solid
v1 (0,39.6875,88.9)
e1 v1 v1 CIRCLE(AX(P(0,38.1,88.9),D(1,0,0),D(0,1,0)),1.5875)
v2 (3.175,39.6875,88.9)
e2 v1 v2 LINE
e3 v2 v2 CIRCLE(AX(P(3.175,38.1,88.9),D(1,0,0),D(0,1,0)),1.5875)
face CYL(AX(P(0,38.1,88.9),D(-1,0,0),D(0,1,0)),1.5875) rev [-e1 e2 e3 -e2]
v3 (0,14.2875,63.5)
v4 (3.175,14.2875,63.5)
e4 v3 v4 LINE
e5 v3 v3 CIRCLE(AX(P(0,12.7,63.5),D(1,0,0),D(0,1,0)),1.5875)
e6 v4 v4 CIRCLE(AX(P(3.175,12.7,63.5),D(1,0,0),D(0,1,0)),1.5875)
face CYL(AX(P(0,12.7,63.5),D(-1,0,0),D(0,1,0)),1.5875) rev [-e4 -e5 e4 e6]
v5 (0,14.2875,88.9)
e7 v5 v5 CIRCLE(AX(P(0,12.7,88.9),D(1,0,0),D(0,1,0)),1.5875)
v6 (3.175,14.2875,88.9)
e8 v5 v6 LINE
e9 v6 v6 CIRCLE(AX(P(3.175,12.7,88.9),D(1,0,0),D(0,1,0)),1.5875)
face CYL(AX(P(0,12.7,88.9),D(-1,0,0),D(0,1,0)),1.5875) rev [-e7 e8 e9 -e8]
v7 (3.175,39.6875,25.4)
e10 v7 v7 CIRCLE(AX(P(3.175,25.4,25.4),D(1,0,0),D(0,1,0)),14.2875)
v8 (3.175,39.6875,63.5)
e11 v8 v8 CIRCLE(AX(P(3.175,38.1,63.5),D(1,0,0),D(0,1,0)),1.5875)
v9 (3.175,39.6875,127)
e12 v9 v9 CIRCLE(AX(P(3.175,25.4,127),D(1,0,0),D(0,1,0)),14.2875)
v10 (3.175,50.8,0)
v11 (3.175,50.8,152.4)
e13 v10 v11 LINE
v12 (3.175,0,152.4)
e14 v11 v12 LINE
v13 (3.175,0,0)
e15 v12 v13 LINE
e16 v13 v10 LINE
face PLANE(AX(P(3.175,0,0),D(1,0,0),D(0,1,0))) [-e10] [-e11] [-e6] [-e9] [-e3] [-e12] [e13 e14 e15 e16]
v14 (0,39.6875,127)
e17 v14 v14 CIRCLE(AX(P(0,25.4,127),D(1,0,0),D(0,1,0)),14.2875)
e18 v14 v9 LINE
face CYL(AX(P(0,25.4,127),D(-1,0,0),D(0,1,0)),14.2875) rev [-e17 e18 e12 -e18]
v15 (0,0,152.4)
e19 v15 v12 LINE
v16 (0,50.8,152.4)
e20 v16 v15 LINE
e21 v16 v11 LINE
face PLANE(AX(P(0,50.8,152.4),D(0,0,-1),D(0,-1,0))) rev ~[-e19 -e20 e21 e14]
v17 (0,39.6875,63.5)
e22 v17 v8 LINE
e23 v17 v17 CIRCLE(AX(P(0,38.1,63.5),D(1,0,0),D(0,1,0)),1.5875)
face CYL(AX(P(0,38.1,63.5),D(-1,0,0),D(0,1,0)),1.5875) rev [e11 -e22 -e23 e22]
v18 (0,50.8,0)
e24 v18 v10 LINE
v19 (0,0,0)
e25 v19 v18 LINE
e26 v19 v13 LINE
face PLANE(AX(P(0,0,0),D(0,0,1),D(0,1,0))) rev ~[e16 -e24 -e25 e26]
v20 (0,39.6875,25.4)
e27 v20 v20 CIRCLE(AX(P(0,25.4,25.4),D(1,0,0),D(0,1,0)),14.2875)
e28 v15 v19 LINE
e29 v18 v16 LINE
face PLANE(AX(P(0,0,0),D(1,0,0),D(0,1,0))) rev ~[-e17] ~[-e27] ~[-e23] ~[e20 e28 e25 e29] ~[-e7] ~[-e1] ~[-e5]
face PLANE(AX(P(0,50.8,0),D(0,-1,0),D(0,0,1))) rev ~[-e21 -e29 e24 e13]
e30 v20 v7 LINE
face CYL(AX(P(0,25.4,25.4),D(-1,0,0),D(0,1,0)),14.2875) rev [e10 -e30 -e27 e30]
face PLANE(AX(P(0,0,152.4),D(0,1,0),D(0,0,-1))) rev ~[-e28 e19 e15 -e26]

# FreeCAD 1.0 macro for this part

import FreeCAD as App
import Part
import Sketcher
Q = App.Units.Quantity


def add_polygon(sketch, points):
    """Adds a closed chain of lines whose ends are joined by coincident constraints."""
    first, n = sketch.GeometryCount, len(points)
    for a, b in zip(points, points[1:] + points[:1]):
        sketch.addGeometry(Part.LineSegment(App.Vector(*a, 0), App.Vector(*b, 0)), False)
    for i in range(n):
        sketch.addConstraint(Sketcher.Constraint("Coincident", first + i, 2, first + (i + 1) % n, 1))

doc = App.newDocument("Part")
body = doc.addObject("PartDesign::Body", "Body")

sketch1 = body.newObject("Sketcher::SketchObject", "Sketch")
sketch1.AttachmentSupport = (doc.getObject("YZ_Plane"), [""])
sketch1.MapMode = "FlatFace"
add_polygon(sketch1, [(0, 152.4), (0, 0), (50.8, 0), (50.8, 152.4)])
sketch1.addGeometry(Part.Circle(App.Vector(25.4, 25.4, 0), App.Vector(0, 0, 1), 14.3), False)
sketch1.addGeometry(Part.Circle(App.Vector(12.7, 63.5, 0), App.Vector(0, 0, 1), 1.6), False)
sketch1.addGeometry(Part.Circle(App.Vector(38.1, 63.5, 0), App.Vector(0, 0, 1), 1.6), False)
sketch1.addGeometry(Part.Circle(App.Vector(12.7, 88.9, 0), App.Vector(0, 0, 1), 1.6), False)
sketch1.addGeometry(Part.Circle(App.Vector(25.4, 127, 0), App.Vector(0, 0, 1), 14.3), False)
sketch1.addGeometry(Part.Circle(App.Vector(38.1, 88.9, 0), App.Vector(0, 0, 1), 1.6), False)
sketch1.addConstraint([
    Sketcher.Constraint("Vertical", 0),
    Sketcher.Constraint("Horizontal", 1),
    Sketcher.Constraint("Vertical", 2),
    Sketcher.Constraint("Horizontal", 3),
    Sketcher.Constraint("Coincident", 0, 2, -1, 1),
    Sketcher.Constraint("Equal", 5, 6),
    Sketcher.Constraint("Equal", 6, 7),
    Sketcher.Constraint("Equal", 4, 8),
    Sketcher.Constraint("Equal", 7, 9),
    Sketcher.Constraint("Horizontal", 5, 3, 6, 3),
    Sketcher.Constraint("Horizontal", 7, 3, 9, 3),
    Sketcher.Constraint("Vertical", 5, 3, 7, 3),
    Sketcher.Constraint("Vertical", 4, 3, 8, 3),
    Sketcher.Constraint("Vertical", 6, 3, 9, 3),
    Sketcher.Constraint("DistanceX", 1, 1, 1, 2, Q("2 in")),
    Sketcher.Constraint("DistanceY", 0, 2, 0, 1, Q("6 in")),
    Sketcher.Constraint("Diameter", 4, Q("1.125 in")),
    Sketcher.Constraint("Diameter", 5, Q("0.125 in")),
    Sketcher.Constraint("DistanceX", -1, 1, 4, 3, Q("1 in")),
    Sketcher.Constraint("DistanceY", -1, 1, 4, 3, Q("1 in")),
    Sketcher.Constraint("DistanceX", 5, 3, 6, 3, Q("1 in")),
    Sketcher.Constraint("DistanceY", 5, 3, 7, 3, Q("1 in")),
    Sketcher.Constraint("DistanceY", 8, 3, 2, 2, Q("1 in")),
    Sketcher.Constraint("DistanceX", -1, 1, 5, 3, Q("0.5 in")),
    Sketcher.Constraint("DistanceY", -1, 1, 5, 3, Q("2.5 in")),
])
pad1 = body.newObject("PartDesign::Pad", "Pad")
pad1.Profile = sketch1
pad1.Length = Q("0.125 in")

doc.recompute()
